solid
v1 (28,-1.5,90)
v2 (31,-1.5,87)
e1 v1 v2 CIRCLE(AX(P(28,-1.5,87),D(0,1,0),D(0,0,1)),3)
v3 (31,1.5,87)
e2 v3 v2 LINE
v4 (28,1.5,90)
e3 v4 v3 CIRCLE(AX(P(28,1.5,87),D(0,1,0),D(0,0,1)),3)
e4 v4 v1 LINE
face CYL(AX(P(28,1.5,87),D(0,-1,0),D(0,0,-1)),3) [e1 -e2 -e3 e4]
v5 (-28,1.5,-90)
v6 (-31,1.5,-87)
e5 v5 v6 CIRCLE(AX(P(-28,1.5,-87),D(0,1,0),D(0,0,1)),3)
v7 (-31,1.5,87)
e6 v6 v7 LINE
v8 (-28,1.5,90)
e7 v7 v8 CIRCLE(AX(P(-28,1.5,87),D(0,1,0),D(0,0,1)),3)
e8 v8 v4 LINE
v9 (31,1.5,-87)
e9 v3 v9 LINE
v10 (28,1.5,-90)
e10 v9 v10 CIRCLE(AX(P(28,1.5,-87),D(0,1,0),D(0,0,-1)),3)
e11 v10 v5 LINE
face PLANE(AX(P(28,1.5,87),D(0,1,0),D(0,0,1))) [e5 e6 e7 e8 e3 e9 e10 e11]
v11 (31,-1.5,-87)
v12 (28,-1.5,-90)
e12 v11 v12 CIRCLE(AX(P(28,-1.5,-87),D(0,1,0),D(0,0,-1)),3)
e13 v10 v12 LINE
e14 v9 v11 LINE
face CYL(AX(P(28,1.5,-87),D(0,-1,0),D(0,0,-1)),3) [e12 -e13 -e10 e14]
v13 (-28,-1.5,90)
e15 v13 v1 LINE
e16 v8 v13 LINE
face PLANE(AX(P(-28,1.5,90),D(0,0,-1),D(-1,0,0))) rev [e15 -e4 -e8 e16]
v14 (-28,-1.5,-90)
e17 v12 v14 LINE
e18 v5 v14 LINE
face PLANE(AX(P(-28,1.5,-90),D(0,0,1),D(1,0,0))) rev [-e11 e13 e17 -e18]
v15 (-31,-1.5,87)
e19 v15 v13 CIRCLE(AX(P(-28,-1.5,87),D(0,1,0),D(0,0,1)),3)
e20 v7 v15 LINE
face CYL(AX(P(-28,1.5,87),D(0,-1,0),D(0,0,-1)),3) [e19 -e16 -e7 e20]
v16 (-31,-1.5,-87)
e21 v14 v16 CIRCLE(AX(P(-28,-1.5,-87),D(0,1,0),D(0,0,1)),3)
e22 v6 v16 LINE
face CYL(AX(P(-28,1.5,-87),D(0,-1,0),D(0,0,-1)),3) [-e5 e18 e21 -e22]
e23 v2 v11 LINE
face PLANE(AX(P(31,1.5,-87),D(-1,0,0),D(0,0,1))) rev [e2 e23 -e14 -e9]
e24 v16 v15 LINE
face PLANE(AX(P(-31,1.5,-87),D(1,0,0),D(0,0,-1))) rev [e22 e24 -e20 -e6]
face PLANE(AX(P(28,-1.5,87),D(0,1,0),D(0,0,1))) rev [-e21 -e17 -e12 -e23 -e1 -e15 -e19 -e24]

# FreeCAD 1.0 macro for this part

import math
import FreeCAD as App
import Part
import Sketcher
Q = App.Units.Quantity

doc = App.newDocument("Part")
body = doc.addObject("PartDesign::Body", "Body")

# Sketch on XZ plane
sketch1 = doc.addObject("Sketcher::SketchObject", "Sketch")
body.addObject(sketch1)
sketch1.AttachmentSupport = (doc.XZ_Plane, [""])
sketch1.MapMode = "FlatFace"
sketch1.addGeometry([
    Part.LineSegment(App.Vector(28, -90, 0), App.Vector(-28, -90, 0)),  # 0
    Part.ArcOfCircle(Part.Circle(App.Vector(-28, -87, 0), App.Vector(0, 0, 1), 3), math.radians(180), math.radians(270)),  # 1
    Part.LineSegment(App.Vector(-31, -87, 0), App.Vector(-31, 87, 0)),  # 2
    Part.ArcOfCircle(Part.Circle(App.Vector(-28, 87, 0), App.Vector(0, 0, 1), 3), math.radians(90), math.radians(180)),  # 3
    Part.LineSegment(App.Vector(-28, 90, 0), App.Vector(28, 90, 0)),  # 4
    Part.ArcOfCircle(Part.Circle(App.Vector(28, 87, 0), App.Vector(0, 0, 1), 3), math.radians(0), math.radians(90)),  # 5
    Part.LineSegment(App.Vector(31, 87, 0), App.Vector(31, -87, 0)),  # 6
    Part.ArcOfCircle(Part.Circle(App.Vector(28, -87, 0), App.Vector(0, 0, 1), 3), math.radians(-90), math.radians(0)),  # 7
], False)
sketch1.addConstraint([
    Sketcher.Constraint("Tangent", 0, 2, 1, 2),
    Sketcher.Constraint("Tangent", 1, 1, 2, 1),
    Sketcher.Constraint("Tangent", 2, 2, 3, 2),
    Sketcher.Constraint("Tangent", 3, 1, 4, 1),
    Sketcher.Constraint("Tangent", 4, 2, 5, 2),
    Sketcher.Constraint("Tangent", 5, 1, 6, 1),
    Sketcher.Constraint("Tangent", 6, 2, 7, 2),
    Sketcher.Constraint("Tangent", 7, 1, 0, 1),
    Sketcher.Constraint("Horizontal", 0),
    Sketcher.Constraint("Vertical", 2),
    Sketcher.Constraint("Horizontal", 4),
    Sketcher.Constraint("Vertical", 6),
    Sketcher.Constraint("Equal", 1, 3),
    Sketcher.Constraint("Equal", 3, 5),
    Sketcher.Constraint("Equal", 5, 7),
    Sketcher.Constraint("Symmetric", 1, 3, 5, 3, -1, 1),
    Sketcher.Constraint("Radius", 1, Q("3 mm")),
    Sketcher.Constraint("DistanceX", 0, 2, 0, 1, Q("56 mm")),
    Sketcher.Constraint("DistanceY", 2, 1, 2, 2, Q("174 mm")),
])
pad1 = doc.addObject("PartDesign::Pad", "Pad")
body.addObject(pad1)
pad1.Profile = sketch1
pad1.Length = 3
pad1.Midplane = True

doc.recompute()
